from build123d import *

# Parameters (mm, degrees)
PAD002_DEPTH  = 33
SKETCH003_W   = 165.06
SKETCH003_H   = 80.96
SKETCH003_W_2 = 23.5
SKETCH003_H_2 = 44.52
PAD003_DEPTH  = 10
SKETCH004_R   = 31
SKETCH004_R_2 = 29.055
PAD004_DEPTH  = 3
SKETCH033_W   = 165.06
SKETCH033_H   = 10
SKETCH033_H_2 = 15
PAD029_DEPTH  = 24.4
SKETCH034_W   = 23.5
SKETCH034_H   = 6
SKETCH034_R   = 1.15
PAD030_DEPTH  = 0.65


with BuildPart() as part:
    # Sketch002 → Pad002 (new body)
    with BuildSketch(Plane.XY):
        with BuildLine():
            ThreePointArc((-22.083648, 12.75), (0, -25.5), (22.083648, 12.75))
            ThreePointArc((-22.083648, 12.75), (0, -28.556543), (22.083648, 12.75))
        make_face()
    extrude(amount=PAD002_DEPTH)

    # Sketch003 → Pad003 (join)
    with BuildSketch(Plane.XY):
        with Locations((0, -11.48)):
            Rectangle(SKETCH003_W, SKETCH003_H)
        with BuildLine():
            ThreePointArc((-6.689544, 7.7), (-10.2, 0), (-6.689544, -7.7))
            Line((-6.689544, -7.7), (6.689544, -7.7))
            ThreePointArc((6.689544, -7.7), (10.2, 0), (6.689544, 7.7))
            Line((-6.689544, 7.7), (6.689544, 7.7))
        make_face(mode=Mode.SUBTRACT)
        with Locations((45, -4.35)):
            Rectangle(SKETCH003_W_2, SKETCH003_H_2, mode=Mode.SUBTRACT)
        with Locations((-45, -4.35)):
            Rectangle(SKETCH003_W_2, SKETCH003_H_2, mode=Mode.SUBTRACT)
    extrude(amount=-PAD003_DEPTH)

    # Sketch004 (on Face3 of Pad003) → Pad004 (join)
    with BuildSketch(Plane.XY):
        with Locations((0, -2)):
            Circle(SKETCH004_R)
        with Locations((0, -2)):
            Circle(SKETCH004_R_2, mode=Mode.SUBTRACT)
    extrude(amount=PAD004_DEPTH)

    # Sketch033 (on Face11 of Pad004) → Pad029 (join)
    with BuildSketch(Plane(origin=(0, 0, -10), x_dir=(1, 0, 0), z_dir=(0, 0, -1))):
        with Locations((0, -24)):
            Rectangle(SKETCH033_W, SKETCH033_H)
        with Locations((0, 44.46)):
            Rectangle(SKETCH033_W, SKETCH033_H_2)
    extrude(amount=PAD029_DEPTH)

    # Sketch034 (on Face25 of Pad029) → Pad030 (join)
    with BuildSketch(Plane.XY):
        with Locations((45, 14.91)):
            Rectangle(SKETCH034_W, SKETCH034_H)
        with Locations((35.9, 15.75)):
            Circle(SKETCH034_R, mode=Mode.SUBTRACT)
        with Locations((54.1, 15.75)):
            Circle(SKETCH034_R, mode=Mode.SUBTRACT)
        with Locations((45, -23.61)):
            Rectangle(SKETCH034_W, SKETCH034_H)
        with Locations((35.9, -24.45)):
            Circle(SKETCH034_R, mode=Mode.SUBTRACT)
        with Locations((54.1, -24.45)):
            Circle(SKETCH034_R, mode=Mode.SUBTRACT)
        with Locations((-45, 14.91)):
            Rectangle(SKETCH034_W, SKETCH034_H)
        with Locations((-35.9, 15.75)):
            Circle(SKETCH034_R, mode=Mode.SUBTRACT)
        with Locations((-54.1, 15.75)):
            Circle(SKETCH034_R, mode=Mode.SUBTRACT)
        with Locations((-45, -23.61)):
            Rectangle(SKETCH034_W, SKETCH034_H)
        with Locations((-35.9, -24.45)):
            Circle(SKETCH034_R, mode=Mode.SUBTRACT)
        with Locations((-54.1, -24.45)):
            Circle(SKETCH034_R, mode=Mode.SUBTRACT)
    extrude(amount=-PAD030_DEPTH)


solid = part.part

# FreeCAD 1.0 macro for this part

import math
import FreeCAD as App
import Part
import Sketcher
from FreeCAD import Vector

doc = App.newDocument("Part")
body = doc.addObject("PartDesign::Body", "Body")

# Sketch on XY plane
sketch1 = doc.addObject("Sketcher::SketchObject", "Sketch")
body.addObject(sketch1)
sketch1.AttachmentSupport = (doc.XY_Plane, [""])
sketch1.MapMode = "FlatFace"
sketch1.addGeometry([
    Part.ArcOfCircle(Part.Circle(Vector(0, 0, 0), Vector(0, 0, 1), 26), math.radians(150), math.radians(390)),
    Part.ArcOfCircle(Part.Circle(Vector(0, -2, 0), Vector(0, 0, 1), 27), math.radians(146), math.radians(394)),
], False)
sketch1.addConstraint([
    Sketcher.Constraint("Coincident", 0, 1, 1, 1),
    Sketcher.Constraint("Coincident", 1, 2, 0, 2),
    Sketcher.Constraint("Coincident", 0, 3, -1, 1),
    Sketcher.Constraint("PointOnObject", 1, 3, -2),
    Sketcher.Constraint("Radius", 0, 25.5),
    Sketcher.Constraint("DistanceY", 1, 3, -1, 1, 2.0),
    Sketcher.Constraint("DistanceY", -1, 1, 0, 1, 12.75),
])
pad1 = doc.addObject("PartDesign::Pad", "Pad")
body.addObject(pad1)
pad1.Profile = sketch1
pad1.Length = 33

# Sketch on XY plane
sketch2 = doc.addObject("Sketcher::SketchObject", "Sketch001")
body.addObject(sketch2)
sketch2.AttachmentSupport = (doc.XY_Plane, [""])
sketch2.MapMode = "FlatFace"
sketch2.addGeometry([
    Part.LineSegment(Vector(-83, 29, 0), Vector(-83, -52, 0)),  # 0
    Part.LineSegment(Vector(-83, -52, 0), Vector(83, -52, 0)),  # 1
    Part.LineSegment(Vector(83, -52, 0), Vector(83, 29, 0)),  # 2
    Part.LineSegment(Vector(83, 29, 0), Vector(-83, 29, 0)),  # 3
    Part.LineSegment(Vector(-33, -27, 0), Vector(-57, -27, 0)),  # 4
    Part.LineSegment(Vector(-57, -27, 0), Vector(-57, 18, 0)),  # 5
    Part.LineSegment(Vector(-57, 18, 0), Vector(-33, 18, 0)),  # 6
    Part.LineSegment(Vector(-33, 18, 0), Vector(-33, -27, 0)),  # 7
    Part.ArcOfCircle(Part.Circle(Vector(0, 0, 0), Vector(0, 0, 1), 10), math.radians(131), math.radians(229)),  # 8
    Part.LineSegment(Vector(-7, 8, 0), Vector(7, 8, 0)),  # 9
    Part.ArcOfCircle(Part.Circle(Vector(0, 0, 0), Vector(0, 0, 1), 10), math.radians(-49), math.radians(49)),  # 10
    Part.LineSegment(Vector(7, -8, 0), Vector(-7, -8, 0)),  # 11
    Part.LineSegment(Vector(57, -27, 0), Vector(33, -27, 0)),  # 12
    Part.LineSegment(Vector(33, -27, 0), Vector(33, 18, 0)),  # 13
    Part.LineSegment(Vector(33, 18, 0), Vector(57, 18, 0)),  # 14
    Part.LineSegment(Vector(57, 18, 0), Vector(57, -27, 0)),  # 15
], False)
sketch2.addConstraint([
    Sketcher.Constraint("Coincident", 0, 2, 1, 1),
    Sketcher.Constraint("Coincident", 1, 2, 2, 1),
    Sketcher.Constraint("Coincident", 2, 2, 3, 1),
    Sketcher.Constraint("Coincident", 3, 2, 0, 1),
    Sketcher.Constraint("Coincident", 4, 2, 5, 1),
    Sketcher.Constraint("Coincident", 5, 2, 6, 1),
    Sketcher.Constraint("Coincident", 6, 2, 7, 1),
    Sketcher.Constraint("Coincident", 7, 2, 4, 1),
    Sketcher.Constraint("Coincident", 8, 1, 9, 1),
    Sketcher.Constraint("Coincident", 9, 2, 10, 2),
    Sketcher.Constraint("Coincident", 10, 1, 11, 1),
    Sketcher.Constraint("Coincident", 11, 2, 8, 2),
    Sketcher.Constraint("Coincident", 12, 2, 13, 1),
    Sketcher.Constraint("Coincident", 13, 2, 14, 1),
    Sketcher.Constraint("Coincident", 14, 2, 15, 1),
    Sketcher.Constraint("Coincident", 15, 2, 12, 1),
    Sketcher.Constraint("Vertical", 0),
    Sketcher.Constraint("Horizontal", 1),
    Sketcher.Constraint("Vertical", 2),
    Sketcher.Constraint("Horizontal", 3),
    Sketcher.Constraint("Horizontal", 4),
    Sketcher.Constraint("Vertical", 5),
    Sketcher.Constraint("Horizontal", 6),
    Sketcher.Constraint("Vertical", 7),
    Sketcher.Constraint("Horizontal", 9),
    Sketcher.Constraint("Horizontal", 11),
    Sketcher.Constraint("Horizontal", 12),
    Sketcher.Constraint("Vertical", 13),
    Sketcher.Constraint("Horizontal", 14),
    Sketcher.Constraint("Vertical", 15),
    Sketcher.Constraint("Coincident", 8, 3, -1, 1),
    Sketcher.Constraint("Coincident", 10, 3, -1, 1),
    Sketcher.Constraint("Equal", 8, 10),
    Sketcher.Constraint("Symmetric", 7, 2, 12, 2, -2),
    Sketcher.Constraint("Symmetric", 5, 2, 14, 2, -2),
    Sketcher.Constraint("Vertical", 9, 2, 10, 1),
    Sketcher.Constraint("Radius", 8, 10.2),
    Sketcher.Constraint("DistanceX", 4, 2, 4, 1, 23.5),
    Sketcher.Constraint("DistanceY", -1, 1, 2, 2, 29.0),
    Sketcher.Constraint("DistanceX", 1, 1, 1, 2, 165.06),
    Sketcher.Constraint("DistanceY", 0, 2, 0, 1, 80.96),
    Sketcher.Constraint("DistanceY", 5, 1, 5, 2, 44.52),
    Sketcher.Constraint("DistanceY", -1, 1, 8, 1, 7.7),
    Sketcher.Constraint("DistanceX", 0, 2, -1, 1, 82.53),
    Sketcher.Constraint("DistanceX", 4, 2, -1, 1, 56.75),
    Sketcher.Constraint("DistanceY", 4, 2, -1, 1, 26.61),
])
pad2 = doc.addObject("PartDesign::Pad", "Pad001")
body.addObject(pad2)
pad2.Profile = sketch2
pad2.Length = 10
pad2.Reversed = True

# Sketch on XY plane
sketch3 = doc.addObject("Sketcher::SketchObject", "Sketch002")
body.addObject(sketch3)
sketch3.AttachmentSupport = (doc.XY_Plane, [""])
sketch3.MapMode = "FlatFace"
sketch3.addGeometry([
    Part.Circle(Vector(0, -2, 0), Vector(0, 0, 1), 31),
    Part.Circle(Vector(0, -2, 0), Vector(0, 0, 1), 29),
], False)
sketch3.addConstraint([
    Sketcher.Constraint("Coincident", 1, 3, 0, 3),
    Sketcher.Constraint("PointOnObject", 0, 3, -2),
    Sketcher.Constraint("Diameter", 0, 62.0),
    Sketcher.Constraint("Diameter", 1, 58.11),
    Sketcher.Constraint("DistanceY", 0, 3, -1, 1, 2.0),
])
pad3 = doc.addObject("PartDesign::Pad", "Pad002")
body.addObject(pad3)
pad3.Profile = sketch3
pad3.Length = 3

# Sketch on XY plane
sketch4 = doc.addObject("Sketcher::SketchObject", "Sketch003")
body.addObject(sketch4)
sketch4.AttachmentSupport = (doc.XY_Plane, [""])
sketch4.MapMode = "FlatFace"
sketch4.AttachmentOffset = App.Placement(Vector(0, 0, -10), App.Rotation())
sketch4.addGeometry([
    Part.LineSegment(Vector(-83, 19, 0), Vector(-83, 29, 0)),  # 0
    Part.LineSegment(Vector(-83, 29, 0), Vector(83, 29, 0)),  # 1
    Part.LineSegment(Vector(83, 29, 0), Vector(83, 19, 0)),  # 2
    Part.LineSegment(Vector(83, 19, 0), Vector(-83, 19, 0)),  # 3
    Part.LineSegment(Vector(-83, -52, 0), Vector(-83, -37, 0)),  # 4
    Part.LineSegment(Vector(-83, -37, 0), Vector(83, -37, 0)),  # 5
    Part.LineSegment(Vector(83, -37, 0), Vector(83, -52, 0)),  # 6
    Part.LineSegment(Vector(83, -52, 0), Vector(-83, -52, 0)),  # 7
], False)
sketch4.addConstraint([
    Sketcher.Constraint("Coincident", 0, 2, 1, 1),
    Sketcher.Constraint("Coincident", 1, 2, 2, 1),
    Sketcher.Constraint("Coincident", 2, 2, 3, 1),
    Sketcher.Constraint("Coincident", 3, 2, 0, 1),
    Sketcher.Constraint("Coincident", 4, 2, 5, 1),
    Sketcher.Constraint("Coincident", 5, 2, 6, 1),
    Sketcher.Constraint("Coincident", 6, 2, 7, 1),
    Sketcher.Constraint("Coincident", 7, 2, 4, 1),
    Sketcher.Constraint("Vertical", 0),
    Sketcher.Constraint("Horizontal", 1),
    Sketcher.Constraint("Vertical", 2),
    Sketcher.Constraint("Horizontal", 3),
    Sketcher.Constraint("Vertical", 4),
    Sketcher.Constraint("Horizontal", 5),
    Sketcher.Constraint("Vertical", 6),
    Sketcher.Constraint("Horizontal", 7),
    Sketcher.Constraint("Vertical", 3, 2, 4, 2),
    Sketcher.Constraint("Vertical", 2, 2, 5, 2),
    Sketcher.Constraint("DistanceY", 0, 1, 0, 2, 10.0),
    Sketcher.Constraint("DistanceY", 4, 1, 4, 2, 15.0),
    Sketcher.Constraint("DistanceY", -1, 1, 0, 2, 29.0),
    Sketcher.Constraint("DistanceX", 1, 1, 1, 2, 165.06),
    Sketcher.Constraint("DistanceX", 0, 2, -1, 1, 82.53),
    Sketcher.Constraint("DistanceY", 4, 2, -1, 1, 36.96),
])
pad4 = doc.addObject("PartDesign::Pad", "Pad003")
body.addObject(pad4)
pad4.Profile = sketch4
pad4.Length = 24.4
pad4.Reversed = True

# Sketch on XY plane
sketch5 = doc.addObject("Sketcher::SketchObject", "Sketch004")
body.addObject(sketch5)
sketch5.AttachmentSupport = (doc.XY_Plane, [""])
sketch5.MapMode = "FlatFace"
sketch5.addGeometry([
    Part.LineSegment(Vector(33.2, 17.9, 0), Vector(33.2, 11.9, 0)),  # 0
    Part.LineSegment(Vector(33.2, 11.9, 0), Vector(56.8, 11.9, 0)),  # 1
    Part.LineSegment(Vector(56.8, 11.9, 0), Vector(56.8, 17.9, 0)),  # 2
    Part.LineSegment(Vector(56.8, 17.9, 0), Vector(33.2, 17.9, 0)),  # 3
    Part.Circle(Vector(35.9, 15.8, 0), Vector(0, 0, 1), 1.1),  # 4
    Part.Circle(Vector(54.1, 15.8, 0), Vector(0, 0, 1), 1.1),  # 5
    Part.LineSegment(Vector(33.2, -20.6, 0), Vector(33.2, -26.6, 0)),  # 6
    Part.LineSegment(Vector(33.2, -26.6, 0), Vector(56.8, -26.6, 0)),  # 7
    Part.LineSegment(Vector(56.8, -26.6, 0), Vector(56.8, -20.6, 0)),  # 8
    Part.LineSegment(Vector(56.8, -20.6, 0), Vector(33.2, -20.6, 0)),  # 9
    Part.Circle(Vector(35.9, -24.4, 0), Vector(0, 0, 1), 1.1),  # 10
    Part.Circle(Vector(54.1, -24.4, 0), Vector(0, 0, 1), 1.1),  # 11
    Part.LineSegment(Vector(-56.8, 17.9, 0), Vector(-56.8, 11.9, 0)),  # 12
    Part.LineSegment(Vector(-56.8, 11.9, 0), Vector(-33.2, 11.9, 0)),  # 13
    Part.LineSegment(Vector(-33.2, 11.9, 0), Vector(-33.2, 17.9, 0)),  # 14
    Part.LineSegment(Vector(-33.2, 17.9, 0), Vector(-56.8, 17.9, 0)),  # 15
    Part.Circle(Vector(-54.1, 15.8, 0), Vector(0, 0, 1), 1.1),  # 16
    Part.Circle(Vector(-35.9, 15.8, 0), Vector(0, 0, 1), 1.1),  # 17
    Part.LineSegment(Vector(-56.8, -20.6, 0), Vector(-56.8, -26.6, 0)),  # 18
    Part.LineSegment(Vector(-56.8, -26.6, 0), Vector(-33.2, -26.6, 0)),  # 19
    Part.LineSegment(Vector(-33.2, -26.6, 0), Vector(-33.2, -20.6, 0)),  # 20
    Part.LineSegment(Vector(-33.2, -20.6, 0), Vector(-56.8, -20.6, 0)),  # 21
    Part.Circle(Vector(-54.1, -24.4, 0), Vector(0, 0, 1), 1.1),  # 22
    Part.Circle(Vector(-35.9, -24.4, 0), Vector(0, 0, 1), 1.1),  # 23
], False)
sketch5.addConstraint([
    Sketcher.Constraint("Coincident", 0, 2, 1, 1),
    Sketcher.Constraint("Coincident", 1, 2, 2, 1),
    Sketcher.Constraint("Coincident", 2, 2, 3, 1),
    Sketcher.Constraint("Coincident", 3, 2, 0, 1),
    Sketcher.Constraint("Coincident", 6, 2, 7, 1),
    Sketcher.Constraint("Coincident", 7, 2, 8, 1),
    Sketcher.Constraint("Coincident", 8, 2, 9, 1),
    Sketcher.Constraint("Coincident", 9, 2, 6, 1),
    Sketcher.Constraint("Coincident", 12, 2, 13, 1),
    Sketcher.Constraint("Coincident", 13, 2, 14, 1),
    Sketcher.Constraint("Coincident", 14, 2, 15, 1),
    Sketcher.Constraint("Coincident", 15, 2, 12, 1),
    Sketcher.Constraint("Coincident", 18, 2, 19, 1),
    Sketcher.Constraint("Coincident", 19, 2, 20, 1),
    Sketcher.Constraint("Coincident", 20, 2, 21, 1),
    Sketcher.Constraint("Coincident", 21, 2, 18, 1),
    Sketcher.Constraint("Vertical", 0),
    Sketcher.Constraint("Horizontal", 1),
    Sketcher.Constraint("Vertical", 2),
    Sketcher.Constraint("Horizontal", 3),
    Sketcher.Constraint("Vertical", 6),
    Sketcher.Constraint("Horizontal", 7),
    Sketcher.Constraint("Vertical", 8),
    Sketcher.Constraint("Horizontal", 9),
    Sketcher.Constraint("Vertical", 12),
    Sketcher.Constraint("Horizontal", 13),
    Sketcher.Constraint("Vertical", 14),
    Sketcher.Constraint("Horizontal", 15),
    Sketcher.Constraint("Vertical", 18),
    Sketcher.Constraint("Horizontal", 19),
    Sketcher.Constraint("Vertical", 20),
    Sketcher.Constraint("Horizontal", 21),
    Sketcher.Constraint("Equal", 4, 5),
    Sketcher.Constraint("Equal", 5, 10),
    Sketcher.Constraint("Equal", 10, 11),
    Sketcher.Constraint("Equal", 11, 16),
    Sketcher.Constraint("Equal", 16, 17),
    Sketcher.Constraint("Equal", 17, 22),
    Sketcher.Constraint("Equal", 22, 23),
    Sketcher.Constraint("Symmetric", 5, 3, 16, 3, -2),
    Sketcher.Constraint("Symmetric", 4, 3, 17, 3, -2),
    Sketcher.Constraint("Symmetric", 11, 3, 22, 3, -2),
    Sketcher.Constraint("Symmetric", 10, 3, 23, 3, -2),
    Sketcher.Constraint("Symmetric", 1, 2, 12, 2, -2),
    Sketcher.Constraint("Symmetric", 3, 2, 14, 2, -2),
    Sketcher.Constraint("Symmetric", 7, 2, 18, 2, -2),
    Sketcher.Constraint("Symmetric", 9, 2, 20, 2, -2),
    Sketcher.Constraint("Horizontal", 4, 3, 5, 3),
    Sketcher.Constraint("Horizontal", 10, 3, 11, 3),
    Sketcher.Constraint("Vertical", 4, 3, 10, 3),
    Sketcher.Constraint("Vertical", 5, 3, 11, 3),
    Sketcher.Constraint("Vertical", 3, 2, 6, 2),
    Sketcher.Constraint("Vertical", 2, 2, 7, 2),
    Sketcher.Constraint("Equal", 2, 6),
    Sketcher.Constraint("Diameter", 4, 2.3),
    Sketcher.Constraint("DistanceY", 0, 2, 0, 1, 6.0),
    Sketcher.Constraint("DistanceX", 1, 1, 1, 2, 23.5),
    Sketcher.Constraint("DistanceX", 16, 3, 4, 3, 90.0),
    Sketcher.Constraint("DistanceX", 12, 2, 0, 2, 90.0),
    Sketcher.Constraint("DistanceX", -1, 1, 4, 3, 35.9),
    Sketcher.Constraint("DistanceY", 10, 3, 4, 3, 40.2),
    Sketcher.Constraint("DistanceY", -1, 1, 4, 3, 15.75),
    Sketcher.Constraint("DistanceY", -1, 1, 0, 2, 11.91),
    Sketcher.Constraint("DistanceY", 6, 2, -1, 1, 26.61),
])
pad5 = doc.addObject("PartDesign::Pad", "Pad004")
body.addObject(pad5)
pad5.Profile = sketch5
pad5.Length = 0.65
pad5.Reversed = True

doc.recompute()
